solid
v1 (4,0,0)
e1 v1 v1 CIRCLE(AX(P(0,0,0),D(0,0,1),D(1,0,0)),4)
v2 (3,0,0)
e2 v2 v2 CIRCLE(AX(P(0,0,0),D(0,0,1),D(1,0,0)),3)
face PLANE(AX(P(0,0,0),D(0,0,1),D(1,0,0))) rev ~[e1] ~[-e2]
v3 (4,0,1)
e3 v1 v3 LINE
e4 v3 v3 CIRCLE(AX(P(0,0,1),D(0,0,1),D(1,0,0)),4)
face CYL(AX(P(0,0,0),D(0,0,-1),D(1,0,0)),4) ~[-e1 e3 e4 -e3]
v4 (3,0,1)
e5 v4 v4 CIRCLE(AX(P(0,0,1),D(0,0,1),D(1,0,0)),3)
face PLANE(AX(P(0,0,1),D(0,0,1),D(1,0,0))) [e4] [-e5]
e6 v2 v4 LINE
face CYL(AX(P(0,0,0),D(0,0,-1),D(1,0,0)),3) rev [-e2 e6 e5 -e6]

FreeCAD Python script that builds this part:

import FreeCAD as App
import Part
import Sketcher
from FreeCAD import Vector
Q = App.Units.Quantity

doc = App.newDocument("Part")
body = doc.addObject("PartDesign::Body", "Body")

sketch1 = body.newObject("Sketcher::SketchObject", "Sketch")
sketch1.AttachmentSupport = (doc.getObject("XY_Plane"), [""])
sketch1.MapMode = "FlatFace"
sketch1.addGeometry([
    Part.Circle(Vector(0, 0, 0), Vector(0, 0, 1), 4),
    Part.Circle(Vector(0, 0, 0), Vector(0, 0, 1), 3),
], False)
sketch1.addConstraint([
    Sketcher.Constraint("Coincident", 0, 3, -1, 1),
    Sketcher.Constraint("Coincident", 1, 3, -1, 1),
    Sketcher.Constraint("Diameter", 0, Q("8 mm")),
    Sketcher.Constraint("Diameter", 1, Q("6 mm")),
])
pad1 = body.newObject("PartDesign::Pad", "Pad")
pad1.Profile = sketch1
pad1.Length = 1

doc.recompute()
